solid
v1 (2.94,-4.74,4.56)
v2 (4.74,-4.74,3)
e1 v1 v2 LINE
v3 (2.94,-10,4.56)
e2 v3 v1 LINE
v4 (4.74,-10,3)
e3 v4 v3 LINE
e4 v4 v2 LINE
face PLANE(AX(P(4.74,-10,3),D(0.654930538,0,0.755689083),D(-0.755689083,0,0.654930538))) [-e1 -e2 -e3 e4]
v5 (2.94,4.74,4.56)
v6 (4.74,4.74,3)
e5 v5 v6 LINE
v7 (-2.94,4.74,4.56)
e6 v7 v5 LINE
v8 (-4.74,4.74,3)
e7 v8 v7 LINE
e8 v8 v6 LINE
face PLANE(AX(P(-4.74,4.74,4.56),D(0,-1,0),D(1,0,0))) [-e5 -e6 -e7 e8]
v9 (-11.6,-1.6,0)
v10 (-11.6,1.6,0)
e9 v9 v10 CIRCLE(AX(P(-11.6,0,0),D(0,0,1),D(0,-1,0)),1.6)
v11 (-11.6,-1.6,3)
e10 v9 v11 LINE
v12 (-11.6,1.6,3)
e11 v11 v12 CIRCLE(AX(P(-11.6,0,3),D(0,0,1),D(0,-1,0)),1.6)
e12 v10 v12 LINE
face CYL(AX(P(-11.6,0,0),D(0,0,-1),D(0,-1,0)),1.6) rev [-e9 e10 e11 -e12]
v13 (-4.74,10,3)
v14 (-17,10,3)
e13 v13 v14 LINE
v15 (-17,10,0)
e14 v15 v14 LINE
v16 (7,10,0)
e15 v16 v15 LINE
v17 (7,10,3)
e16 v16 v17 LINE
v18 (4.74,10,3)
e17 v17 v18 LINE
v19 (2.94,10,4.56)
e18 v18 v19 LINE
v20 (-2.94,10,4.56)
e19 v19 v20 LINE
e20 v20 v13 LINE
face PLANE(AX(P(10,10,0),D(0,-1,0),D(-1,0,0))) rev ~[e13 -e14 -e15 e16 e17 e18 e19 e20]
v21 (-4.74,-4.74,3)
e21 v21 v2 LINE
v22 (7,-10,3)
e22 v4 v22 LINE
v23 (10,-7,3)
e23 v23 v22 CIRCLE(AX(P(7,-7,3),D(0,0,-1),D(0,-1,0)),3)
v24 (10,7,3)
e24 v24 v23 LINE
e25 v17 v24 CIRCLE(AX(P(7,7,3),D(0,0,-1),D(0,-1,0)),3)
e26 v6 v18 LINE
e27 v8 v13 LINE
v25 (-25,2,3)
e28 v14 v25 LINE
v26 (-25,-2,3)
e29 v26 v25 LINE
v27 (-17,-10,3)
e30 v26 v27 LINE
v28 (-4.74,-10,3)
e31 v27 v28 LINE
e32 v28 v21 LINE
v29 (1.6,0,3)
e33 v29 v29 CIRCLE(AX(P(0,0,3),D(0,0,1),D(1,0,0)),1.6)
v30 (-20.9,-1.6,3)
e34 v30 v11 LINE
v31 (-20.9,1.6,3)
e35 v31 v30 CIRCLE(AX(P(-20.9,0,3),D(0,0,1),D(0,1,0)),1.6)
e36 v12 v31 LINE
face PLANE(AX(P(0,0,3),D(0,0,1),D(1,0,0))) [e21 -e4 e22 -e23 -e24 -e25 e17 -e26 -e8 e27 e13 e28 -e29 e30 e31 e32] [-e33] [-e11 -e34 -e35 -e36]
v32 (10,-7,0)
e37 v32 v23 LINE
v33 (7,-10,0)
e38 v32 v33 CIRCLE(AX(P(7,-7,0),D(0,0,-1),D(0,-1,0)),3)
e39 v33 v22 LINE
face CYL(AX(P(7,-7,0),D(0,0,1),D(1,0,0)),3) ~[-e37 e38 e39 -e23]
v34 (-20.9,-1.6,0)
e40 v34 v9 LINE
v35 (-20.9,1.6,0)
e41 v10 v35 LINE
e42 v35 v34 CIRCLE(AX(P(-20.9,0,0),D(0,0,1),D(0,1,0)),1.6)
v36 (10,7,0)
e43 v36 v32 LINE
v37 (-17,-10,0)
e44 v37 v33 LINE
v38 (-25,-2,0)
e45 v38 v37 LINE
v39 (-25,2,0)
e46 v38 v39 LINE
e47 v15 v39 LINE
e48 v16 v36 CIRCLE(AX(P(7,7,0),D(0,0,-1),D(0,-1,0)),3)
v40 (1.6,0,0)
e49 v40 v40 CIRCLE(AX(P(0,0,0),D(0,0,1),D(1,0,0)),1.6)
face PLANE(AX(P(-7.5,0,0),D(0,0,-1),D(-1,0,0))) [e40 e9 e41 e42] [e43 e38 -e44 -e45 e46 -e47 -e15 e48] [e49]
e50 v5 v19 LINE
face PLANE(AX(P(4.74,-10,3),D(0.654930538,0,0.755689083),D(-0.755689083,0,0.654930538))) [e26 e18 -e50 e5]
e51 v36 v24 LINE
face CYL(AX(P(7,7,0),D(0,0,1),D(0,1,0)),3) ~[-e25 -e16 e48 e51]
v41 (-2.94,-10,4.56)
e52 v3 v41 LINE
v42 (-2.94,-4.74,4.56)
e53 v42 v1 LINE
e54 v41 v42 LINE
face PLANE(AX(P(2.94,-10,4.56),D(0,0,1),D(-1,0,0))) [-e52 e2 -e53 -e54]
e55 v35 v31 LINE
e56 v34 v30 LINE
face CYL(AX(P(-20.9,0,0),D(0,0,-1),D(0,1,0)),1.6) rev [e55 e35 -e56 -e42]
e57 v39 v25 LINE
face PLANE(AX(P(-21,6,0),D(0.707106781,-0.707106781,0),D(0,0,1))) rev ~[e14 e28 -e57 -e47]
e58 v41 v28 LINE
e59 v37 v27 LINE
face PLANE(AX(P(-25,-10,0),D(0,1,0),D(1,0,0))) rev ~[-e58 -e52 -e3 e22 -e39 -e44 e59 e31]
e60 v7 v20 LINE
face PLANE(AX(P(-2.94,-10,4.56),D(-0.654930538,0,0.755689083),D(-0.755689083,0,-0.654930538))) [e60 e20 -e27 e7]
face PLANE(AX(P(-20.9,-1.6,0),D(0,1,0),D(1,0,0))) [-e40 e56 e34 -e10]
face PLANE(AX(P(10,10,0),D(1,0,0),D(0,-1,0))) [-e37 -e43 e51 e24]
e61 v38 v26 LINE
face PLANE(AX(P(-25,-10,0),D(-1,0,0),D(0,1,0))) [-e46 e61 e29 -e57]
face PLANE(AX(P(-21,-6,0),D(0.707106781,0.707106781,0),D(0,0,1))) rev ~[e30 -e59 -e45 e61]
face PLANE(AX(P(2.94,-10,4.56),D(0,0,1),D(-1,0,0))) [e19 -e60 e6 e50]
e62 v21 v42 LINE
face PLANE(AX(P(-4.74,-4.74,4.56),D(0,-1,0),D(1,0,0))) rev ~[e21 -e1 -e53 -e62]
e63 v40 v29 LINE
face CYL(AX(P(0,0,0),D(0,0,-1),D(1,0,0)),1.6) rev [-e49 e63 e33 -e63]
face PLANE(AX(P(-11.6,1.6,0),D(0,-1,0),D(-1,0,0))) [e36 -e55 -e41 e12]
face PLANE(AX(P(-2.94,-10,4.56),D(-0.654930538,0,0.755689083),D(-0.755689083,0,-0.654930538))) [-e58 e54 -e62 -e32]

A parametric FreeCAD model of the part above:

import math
import FreeCAD as App
import Part
import Sketcher
Q = App.Units.Quantity


def edges_at(feature, points):
    """Names of the edges that pass closest to the given points."""
    edges = feature.Shape.Edges
    near = lambda p: min(range(len(edges)), key=lambda i: edges[i].distToShape(Part.Vertex(*p))[0])
    return sorted({f"Edge{near(p) + 1}" for p in points})

doc = App.newDocument("Part")
body = doc.addObject("PartDesign::Body", "Body")

sketch1 = doc.addObject("Sketcher::SketchObject", "Sketch")
body.addObject(sketch1)
sketch1.AttachmentSupport = (doc.XY_Plane, [""])
sketch1.MapMode = "FlatFace"
sketch1.addGeometry(Part.LineSegment(App.Vector(10, 10, 0), App.Vector(-25, 10, 0)), False)
sketch1.addGeometry(Part.LineSegment(App.Vector(-25, 10, 0), App.Vector(-25, -10, 0)), False)
sketch1.addGeometry(Part.LineSegment(App.Vector(-25, -10, 0), App.Vector(10, -10, 0)), False)
sketch1.addGeometry(Part.LineSegment(App.Vector(10, -10, 0), App.Vector(10, 10, 0)), False)
sketch1.addGeometry(Part.Circle(App.Vector(0, 0, 0), App.Vector(0, 0, 1), 1.6), False)
sketch1.addGeometry(Part.LineSegment(App.Vector(-20.9, 1.6, 0), App.Vector(-11.6, 1.6, 0)), False)
sketch1.addGeometry(Part.ArcOfCircle(Part.Circle(App.Vector(-11.6, 0, 0), App.Vector(0, 0, 1), 1.6), math.radians(-90), math.radians(90)), False)
sketch1.addGeometry(Part.LineSegment(App.Vector(-11.6, -1.6, 0), App.Vector(-20.9, -1.6, 0)), False)
sketch1.addGeometry(Part.ArcOfCircle(Part.Circle(App.Vector(-20.9, 0, 0), App.Vector(0, 0, 1), 1.6), math.radians(90), math.radians(270)), False)
sketch1.addConstraint(Sketcher.Constraint("Coincident", 0, 2, 1, 1))
sketch1.addConstraint(Sketcher.Constraint("Coincident", 1, 2, 2, 1))
sketch1.addConstraint(Sketcher.Constraint("Coincident", 2, 2, 3, 1))
sketch1.addConstraint(Sketcher.Constraint("Coincident", 3, 2, 0, 1))
sketch1.addConstraint(Sketcher.Constraint("Tangent", 5, 2, 6, 2))
sketch1.addConstraint(Sketcher.Constraint("Tangent", 6, 1, 7, 1))
sketch1.addConstraint(Sketcher.Constraint("Tangent", 7, 2, 8, 2))
sketch1.addConstraint(Sketcher.Constraint("Tangent", 8, 1, 5, 1))
sketch1.addConstraint(Sketcher.Constraint("Horizontal", 0))
sketch1.addConstraint(Sketcher.Constraint("Vertical", 1))
sketch1.addConstraint(Sketcher.Constraint("Horizontal", 2))
sketch1.addConstraint(Sketcher.Constraint("Vertical", 3))
sketch1.addConstraint(Sketcher.Constraint("Horizontal", 5))
sketch1.addConstraint(Sketcher.Constraint("Horizontal", 7))
sketch1.addConstraint(Sketcher.Constraint("Coincident", 4, 3, -1, 1))
sketch1.addConstraint(Sketcher.Constraint("Equal", 4, 6))
sketch1.addConstraint(Sketcher.Constraint("PointOnObject", 6, 3, -1))
sketch1.addConstraint(Sketcher.Constraint("Diameter", 4, Q("3.2 mm")))
sketch1.addConstraint(Sketcher.Constraint("DistanceX", 0, 2, 0, 1, Q("35 mm")))
sketch1.addConstraint(Sketcher.Constraint("DistanceY", 1, 2, 1, 1, Q("20 mm")))
sketch1.addConstraint(Sketcher.Constraint("DistanceX", 5, 1, 5, 2, Q("9.3 mm")))
sketch1.addConstraint(Sketcher.Constraint("DistanceX", 0, 2, -1, 1, Q("25 mm")))
sketch1.addConstraint(Sketcher.Constraint("DistanceY", -1, 1, 0, 2, Q("10 mm")))
sketch1.addConstraint(Sketcher.Constraint("DistanceX", 6, 3, -1, 1, Q("11.6 mm")))
pad1 = doc.addObject("PartDesign::Pad", "Pad")
body.addObject(pad1)
pad1.Profile = sketch1
pad1.Length = 3

sketch2 = doc.addObject("Sketcher::SketchObject", "Sketch001")
body.addObject(sketch2)
sketch2.AttachmentSupport = (doc.XZ_Plane, [""])
sketch2.MapMode = "FlatFace"
sketch2.AttachmentOffset = App.Placement(App.Vector(0, 0, 10), App.Rotation())
sketch2.addGeometry(Part.LineSegment(App.Vector(-4.74, 3, 0), App.Vector(4.74, 3, 0)), False)
sketch2.addGeometry(Part.LineSegment(App.Vector(4.74, 3, 0), App.Vector(2.94, 4.56, 0)), False)
sketch2.addGeometry(Part.LineSegment(App.Vector(2.94, 4.56, 0), App.Vector(-2.94, 4.56, 0)), False)
sketch2.addGeometry(Part.LineSegment(App.Vector(-2.94, 4.56, 0), App.Vector(-4.74, 3, 0)), False)
sketch2.addConstraint(Sketcher.Constraint("Coincident", 0, 2, 1, 1))
sketch2.addConstraint(Sketcher.Constraint("Coincident", 1, 2, 2, 1))
sketch2.addConstraint(Sketcher.Constraint("Coincident", 2, 2, 3, 1))
sketch2.addConstraint(Sketcher.Constraint("Coincident", 3, 2, 0, 1))
sketch2.addConstraint(Sketcher.Constraint("Horizontal", 0))
sketch2.addConstraint(Sketcher.Constraint("Horizontal", 2))
sketch2.addConstraint(Sketcher.Constraint("Equal", 1, 3))
sketch2.addConstraint(Sketcher.Constraint("DistanceY", -1, 1, 0, 2, Q("3 mm")))
sketch2.addConstraint(Sketcher.Constraint("DistanceX", 0, 1, 0, 2, Q("9.48 mm")))
sketch2.addConstraint(Sketcher.Constraint("DistanceX", 2, 2, 2, 1, Q("5.88 mm")))
sketch2.addConstraint(Sketcher.Constraint("DistanceX", -1, 1, 0, 2, Q("4.74 mm")))
sketch2.addConstraint(Sketcher.Constraint("DistanceY", -1, 1, 1, 2, Q("4.56 mm")))
pad2 = doc.addObject("PartDesign::Pad", "Pad001")
body.addObject(pad2)
pad2.Profile = sketch2
pad2.Length = 20
pad2.Reversed = True

sketch3 = doc.addObject("Sketcher::SketchObject", "Sketch002")
body.addObject(sketch3)
sketch3.AttachmentSupport = (doc.XY_Plane, [""])
sketch3.MapMode = "FlatFace"
sketch3.AttachmentOffset = App.Placement(App.Vector(0, 0, 4.56), App.Rotation())
sketch3.addGeometry(Part.LineSegment(App.Vector(-4.74, 4.74, 0), App.Vector(-4.74, -4.74, 0)), False)
sketch3.addGeometry(Part.LineSegment(App.Vector(-4.74, -4.74, 0), App.Vector(4.74, -4.74, 0)), False)
sketch3.addGeometry(Part.LineSegment(App.Vector(4.74, -4.74, 0), App.Vector(4.74, 4.74, 0)), False)
sketch3.addGeometry(Part.LineSegment(App.Vector(4.74, 4.74, 0), App.Vector(-4.74, 4.74, 0)), False)
sketch3.addConstraint(Sketcher.Constraint("Coincident", 0, 2, 1, 1))
sketch3.addConstraint(Sketcher.Constraint("Coincident", 1, 2, 2, 1))
sketch3.addConstraint(Sketcher.Constraint("Coincident", 2, 2, 3, 1))
sketch3.addConstraint(Sketcher.Constraint("Coincident", 3, 2, 0, 1))
sketch3.addConstraint(Sketcher.Constraint("Vertical", 0))
sketch3.addConstraint(Sketcher.Constraint("Horizontal", 1))
sketch3.addConstraint(Sketcher.Constraint("Vertical", 2))
sketch3.addConstraint(Sketcher.Constraint("Horizontal", 3))
sketch3.addConstraint(Sketcher.Constraint("Symmetric", 0, 2, 2, 2, -1, 1))
sketch3.addConstraint(Sketcher.Constraint("Equal", 3, 0))
sketch3.addConstraint(Sketcher.Constraint("DistanceX", 1, 1, 1, 2, Q("9.48 mm")))
pocket1 = doc.addObject("PartDesign::Pocket", "Pocket")
body.addObject(pocket1)
pocket1.Profile = sketch3
pocket1.Length = 1.56
doc.recompute()

chamfer = doc.addObject("PartDesign::Chamfer", "Chamfer")
body.addObject(chamfer)
chamfer.Base = (pocket1, edges_at(pocket1, [(-25, 10, 1.5), (-25, -10, 1.5)]))
chamfer.Size = 8
doc.recompute()

fillet = doc.addObject("PartDesign::Fillet", "Fillet")
body.addObject(fillet)
fillet.Base = (chamfer, edges_at(chamfer, [(10, 10, 1.5), (10, -10, 1.5)]))
fillet.Radius = 3

doc.recompute()
